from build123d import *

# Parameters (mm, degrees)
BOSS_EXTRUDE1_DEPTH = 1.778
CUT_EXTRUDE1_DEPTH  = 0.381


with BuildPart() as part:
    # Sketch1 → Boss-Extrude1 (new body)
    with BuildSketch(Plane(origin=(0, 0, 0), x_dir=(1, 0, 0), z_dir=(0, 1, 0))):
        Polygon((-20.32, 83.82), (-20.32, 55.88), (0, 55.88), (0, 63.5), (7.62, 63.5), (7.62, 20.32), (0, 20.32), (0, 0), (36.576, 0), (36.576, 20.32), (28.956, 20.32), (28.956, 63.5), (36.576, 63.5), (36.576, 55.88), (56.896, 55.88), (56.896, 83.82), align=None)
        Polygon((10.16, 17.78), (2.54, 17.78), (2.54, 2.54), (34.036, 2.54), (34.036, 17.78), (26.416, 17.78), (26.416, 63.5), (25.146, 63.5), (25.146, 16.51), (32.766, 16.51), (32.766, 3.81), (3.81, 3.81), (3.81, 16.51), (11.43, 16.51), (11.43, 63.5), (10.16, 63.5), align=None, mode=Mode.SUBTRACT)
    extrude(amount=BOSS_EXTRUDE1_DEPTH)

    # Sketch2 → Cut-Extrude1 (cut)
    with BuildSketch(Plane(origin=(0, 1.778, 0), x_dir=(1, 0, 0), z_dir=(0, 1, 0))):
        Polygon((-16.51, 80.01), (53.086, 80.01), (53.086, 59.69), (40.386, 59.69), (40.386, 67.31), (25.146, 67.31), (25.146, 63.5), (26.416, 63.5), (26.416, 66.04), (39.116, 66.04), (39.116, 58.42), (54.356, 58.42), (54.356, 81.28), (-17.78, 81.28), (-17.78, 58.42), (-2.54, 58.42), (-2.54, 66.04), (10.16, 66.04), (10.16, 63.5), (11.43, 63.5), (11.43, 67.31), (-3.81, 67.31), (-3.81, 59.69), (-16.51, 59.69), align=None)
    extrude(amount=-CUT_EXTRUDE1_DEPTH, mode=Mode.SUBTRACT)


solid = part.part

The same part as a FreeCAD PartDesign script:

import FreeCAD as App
import Part
import Sketcher
Q = App.Units.Quantity

doc = App.newDocument("Part")
params = doc.addObject("Spreadsheet::Sheet", "Params")
for row, (alias, value) in enumerate([
    ("sketch1_width", "0.8 in"),
    ("sketch1_width2", "0.3 in"),
    ("sketch1_height", "1.1 in"),
    ("sketch1_height2", "1.7 in"),
    ("sketch1_height3", "1.8 in"),
    ("pad1_length", "0.07 in"),
    ("sketch2_width", "0.5 in"),
    ("sketch2_width2", "0.6 in"),
    ("sketch2_height", "0.8 in"),
    ("sketch2_height2", "0.3 in"),
    ("sketch2_height3", "0.1 in"),
    ("pocket1_length", "0.015 in"),
], start=1):
    params.set(f"A{row}", alias)
    params.set(f"B{row}", "=" + value)
    params.setAlias(f"B{row}", alias)

body = doc.addObject("PartDesign::Body", "Body")

# Sketch on XZ plane
sketch1 = doc.addObject("Sketcher::SketchObject", "Sketch")
body.addObject(sketch1)
sketch1.AttachmentSupport = (doc.XZ_Plane, [""])
sketch1.MapMode = "FlatFace"
sketch1.addGeometry([
    Part.LineSegment(App.Vector(-20.3, -83.8, 0), App.Vector(-20.3, -55.9, 0)),  # 0
    Part.LineSegment(App.Vector(-20.3, -55.9, 0), App.Vector(0, -55.9, 0)),  # 1
    Part.LineSegment(App.Vector(0, -55.9, 0), App.Vector(0, -63.5, 0)),  # 2
    Part.LineSegment(App.Vector(0, -63.5, 0), App.Vector(7.6, -63.5, 0)),  # 3
    Part.LineSegment(App.Vector(7.6, -63.5, 0), App.Vector(7.6, -20.3, 0)),  # 4
    Part.LineSegment(App.Vector(7.6, -20.3, 0), App.Vector(0, -20.3, 0)),  # 5
    Part.LineSegment(App.Vector(0, -20.3, 0), App.Vector(0, 0, 0)),  # 6
    Part.LineSegment(App.Vector(0, 0, 0), App.Vector(36.6, 0, 0)),  # 7
    Part.LineSegment(App.Vector(36.6, 0, 0), App.Vector(36.6, -20.3, 0)),  # 8
    Part.LineSegment(App.Vector(36.6, -20.3, 0), App.Vector(29, -20.3, 0)),  # 9
    Part.LineSegment(App.Vector(29, -20.3, 0), App.Vector(29, -63.5, 0)),  # 10
    Part.LineSegment(App.Vector(29, -63.5, 0), App.Vector(36.6, -63.5, 0)),  # 11
    Part.LineSegment(App.Vector(36.6, -63.5, 0), App.Vector(36.6, -55.9, 0)),  # 12
    Part.LineSegment(App.Vector(36.6, -55.9, 0), App.Vector(56.9, -55.9, 0)),  # 13
    Part.LineSegment(App.Vector(56.9, -55.9, 0), App.Vector(56.9, -83.8, 0)),  # 14
    Part.LineSegment(App.Vector(56.9, -83.8, 0), App.Vector(-20.3, -83.8, 0)),  # 15
    Part.LineSegment(App.Vector(2.5, -17.8, 0), App.Vector(10.2, -17.8, 0)),  # 16
    Part.LineSegment(App.Vector(10.2, -17.8, 0), App.Vector(10.2, -63.5, 0)),  # 17
    Part.LineSegment(App.Vector(10.2, -63.5, 0), App.Vector(11.4, -63.5, 0)),  # 18
    Part.LineSegment(App.Vector(11.4, -63.5, 0), App.Vector(11.4, -16.5, 0)),  # 19
    Part.LineSegment(App.Vector(11.4, -16.5, 0), App.Vector(3.8, -16.5, 0)),  # 20
    Part.LineSegment(App.Vector(3.8, -16.5, 0), App.Vector(3.8, -3.8, 0)),  # 21
    Part.LineSegment(App.Vector(3.8, -3.8, 0), App.Vector(32.8, -3.8, 0)),  # 22
    Part.LineSegment(App.Vector(32.8, -3.8, 0), App.Vector(32.8, -16.5, 0)),  # 23
    Part.LineSegment(App.Vector(32.8, -16.5, 0), App.Vector(25.1, -16.5, 0)),  # 24
    Part.LineSegment(App.Vector(25.1, -16.5, 0), App.Vector(25.1, -63.5, 0)),  # 25
    Part.LineSegment(App.Vector(25.1, -63.5, 0), App.Vector(26.4, -63.5, 0)),  # 26
    Part.LineSegment(App.Vector(26.4, -63.5, 0), App.Vector(26.4, -17.8, 0)),  # 27
    Part.LineSegment(App.Vector(26.4, -17.8, 0), App.Vector(34, -17.8, 0)),  # 28
    Part.LineSegment(App.Vector(34, -17.8, 0), App.Vector(34, -2.5, 0)),  # 29
    Part.LineSegment(App.Vector(34, -2.5, 0), App.Vector(2.5, -2.5, 0)),  # 30
    Part.LineSegment(App.Vector(2.5, -2.5, 0), App.Vector(2.5, -17.8, 0)),  # 31
], False)
sketch1.addConstraint([
    Sketcher.Constraint("Coincident", 0, 2, 1, 1),
    Sketcher.Constraint("Coincident", 1, 2, 2, 1),
    Sketcher.Constraint("Coincident", 2, 2, 3, 1),
    Sketcher.Constraint("Coincident", 3, 2, 4, 1),
    Sketcher.Constraint("Coincident", 4, 2, 5, 1),
    Sketcher.Constraint("Coincident", 5, 2, 6, 1),
    Sketcher.Constraint("Coincident", 6, 2, 7, 1),
    Sketcher.Constraint("Coincident", 7, 2, 8, 1),
    Sketcher.Constraint("Coincident", 8, 2, 9, 1),
    Sketcher.Constraint("Coincident", 9, 2, 10, 1),
    Sketcher.Constraint("Coincident", 10, 2, 11, 1),
    Sketcher.Constraint("Coincident", 11, 2, 12, 1),
    Sketcher.Constraint("Coincident", 12, 2, 13, 1),
    Sketcher.Constraint("Coincident", 13, 2, 14, 1),
    Sketcher.Constraint("Coincident", 14, 2, 15, 1),
    Sketcher.Constraint("Coincident", 15, 2, 0, 1),
    Sketcher.Constraint("Coincident", 16, 2, 17, 1),
    Sketcher.Constraint("Coincident", 17, 2, 18, 1),
    Sketcher.Constraint("Coincident", 18, 2, 19, 1),
    Sketcher.Constraint("Coincident", 19, 2, 20, 1),
    Sketcher.Constraint("Coincident", 20, 2, 21, 1),
    Sketcher.Constraint("Coincident", 21, 2, 22, 1),
    Sketcher.Constraint("Coincident", 22, 2, 23, 1),
    Sketcher.Constraint("Coincident", 23, 2, 24, 1),
    Sketcher.Constraint("Coincident", 24, 2, 25, 1),
    Sketcher.Constraint("Coincident", 25, 2, 26, 1),
    Sketcher.Constraint("Coincident", 26, 2, 27, 1),
    Sketcher.Constraint("Coincident", 27, 2, 28, 1),
    Sketcher.Constraint("Coincident", 28, 2, 29, 1),
    Sketcher.Constraint("Coincident", 29, 2, 30, 1),
    Sketcher.Constraint("Coincident", 30, 2, 31, 1),
    Sketcher.Constraint("Coincident", 31, 2, 16, 1),
    Sketcher.Constraint("Vertical", 0),
    Sketcher.Constraint("Horizontal", 1),
    Sketcher.Constraint("Vertical", 2),
    Sketcher.Constraint("Horizontal", 3),
    Sketcher.Constraint("Vertical", 4),
    Sketcher.Constraint("Horizontal", 5),
    Sketcher.Constraint("Vertical", 6),
    Sketcher.Constraint("Horizontal", 7),
    Sketcher.Constraint("Vertical", 8),
    Sketcher.Constraint("Horizontal", 9),
    Sketcher.Constraint("Vertical", 10),
    Sketcher.Constraint("Horizontal", 11),
    Sketcher.Constraint("Vertical", 12),
    Sketcher.Constraint("Horizontal", 13),
    Sketcher.Constraint("Vertical", 14),
    Sketcher.Constraint("Horizontal", 15),
    Sketcher.Constraint("Horizontal", 16),
    Sketcher.Constraint("Vertical", 17),
    Sketcher.Constraint("Horizontal", 18),
    Sketcher.Constraint("Vertical", 19),
    Sketcher.Constraint("Horizontal", 20),
    Sketcher.Constraint("Vertical", 21),
    Sketcher.Constraint("Horizontal", 22),
    Sketcher.Constraint("Vertical", 23),
    Sketcher.Constraint("Horizontal", 24),
    Sketcher.Constraint("Vertical", 25),
    Sketcher.Constraint("Horizontal", 26),
    Sketcher.Constraint("Vertical", 27),
    Sketcher.Constraint("Horizontal", 28),
    Sketcher.Constraint("Vertical", 29),
    Sketcher.Constraint("Horizontal", 30),
    Sketcher.Constraint("Vertical", 31),
    Sketcher.Constraint("Coincident", 6, 2, -1, 1),
    Sketcher.Constraint("PointOnObject", 1, 2, -2),
    Sketcher.Constraint("Horizontal", 5, 2, 8, 2),
    Sketcher.Constraint("Horizontal", 3, 2, 10, 2),
    Sketcher.Constraint("Horizontal", 1, 2, 12, 2),
    Sketcher.Constraint("Horizontal", 11, 2, 17, 2),
    Sketcher.Constraint("Horizontal", 20, 2, 23, 2),
    Sketcher.Constraint("Horizontal", 18, 2, 25, 2),
    Sketcher.Constraint("Horizontal", 16, 2, 27, 2),
    Sketcher.Constraint("Vertical", 8, 2, 11, 2),
    Sketcher.Constraint("Equal", 5, 9),
    Sketcher.Constraint("Equal", 1, 13),
    Sketcher.Constraint("Equal", 11, 16),
    Sketcher.Constraint("Equal", 16, 20),
    Sketcher.Constraint("Equal", 20, 24),
    Sketcher.Constraint("Equal", 18, 26),
    Sketcher.Constraint("Equal", 24, 28),
    Sketcher.Constraint("Equal", 28, 2),
    Sketcher.Constraint("Equal", 13, 6),
    Sketcher.Constraint("DistanceX", 1, 1, 1, 2, Q("0.8 in")),
    Sketcher.Constraint("DistanceX", 3, 1, 3, 2, Q("0.3 in")),
    Sketcher.Constraint("DistanceY", 0, 1, 0, 2, Q("1.1 in")),
    Sketcher.Constraint("DistanceY", 4, 1, 4, 2, Q("1.7 in")),
    Sketcher.Constraint("DistanceY", 17, 2, 17, 1, Q("1.8 in")),
    Sketcher.Constraint("DistanceY", 21, 1, 21, 2, Q("0.5 in")),
    Sketcher.Constraint("DistanceY", 29, 1, 29, 2, Q("0.6 in")),
    Sketcher.Constraint("DistanceX", 7, 1, 7, 2, Q("1.44 in")),
    Sketcher.Constraint("DistanceX", 18, 1, 18, 2, Q("0.05 in")),
    Sketcher.Constraint("DistanceX", 22, 1, 22, 2, Q("1.14 in")),
    Sketcher.Constraint("DistanceY", 19, 1, 19, 2, Q("1.85 in")),
    Sketcher.Constraint("DistanceX", -1, 1, 16, 2, Q("0.4 in")),
])
sketch1.setExpression("Constraints[83]", "Params.sketch1_width")
sketch1.setExpression("Constraints[84]", "Params.sketch1_width2")
sketch1.setExpression("Constraints[85]", "Params.sketch1_height")
sketch1.setExpression("Constraints[86]", "Params.sketch1_height2")
sketch1.setExpression("Constraints[87]", "Params.sketch1_height3")
pad1 = doc.addObject("PartDesign::Pad", "Pad")
body.addObject(pad1)
pad1.Profile = sketch1
pad1.setExpression("Length", "Params.pad1_length")
pad1.Reversed = True

# Sketch on XZ plane
sketch2 = doc.addObject("Sketcher::SketchObject", "Sketch001")
body.addObject(sketch2)
sketch2.AttachmentSupport = (doc.XZ_Plane, [""])
sketch2.MapMode = "FlatFace"
sketch2.AttachmentOffset = App.Placement(App.Vector(0, 0, -0.07 * 25.4), App.Rotation())
sketch2.addGeometry([
    Part.LineSegment(App.Vector(-16.5, -80, 0), App.Vector(53.1, -80, 0)),  # 0
    Part.LineSegment(App.Vector(53.1, -80, 0), App.Vector(53.1, -59.7, 0)),  # 1
    Part.LineSegment(App.Vector(53.1, -59.7, 0), App.Vector(40.4, -59.7, 0)),  # 2
    Part.LineSegment(App.Vector(40.4, -59.7, 0), App.Vector(40.4, -67.3, 0)),  # 3
    Part.LineSegment(App.Vector(40.4, -67.3, 0), App.Vector(25.1, -67.3, 0)),  # 4
    Part.LineSegment(App.Vector(25.1, -67.3, 0), App.Vector(25.1, -63.5, 0)),  # 5
    Part.LineSegment(App.Vector(25.1, -63.5, 0), App.Vector(26.4, -63.5, 0)),  # 6
    Part.LineSegment(App.Vector(26.4, -63.5, 0), App.Vector(26.4, -66, 0)),  # 7
    Part.LineSegment(App.Vector(26.4, -66, 0), App.Vector(39.1, -66, 0)),  # 8
    Part.LineSegment(App.Vector(39.1, -66, 0), App.Vector(39.1, -58.4, 0)),  # 9
    Part.LineSegment(App.Vector(39.1, -58.4, 0), App.Vector(54.4, -58.4, 0)),  # 10
    Part.LineSegment(App.Vector(54.4, -58.4, 0), App.Vector(54.4, -81.3, 0)),  # 11
    Part.LineSegment(App.Vector(54.4, -81.3, 0), App.Vector(-17.8, -81.3, 0)),  # 12
    Part.LineSegment(App.Vector(-17.8, -81.3, 0), App.Vector(-17.8, -58.4, 0)),  # 13
    Part.LineSegment(App.Vector(-17.8, -58.4, 0), App.Vector(-2.5, -58.4, 0)),  # 14
    Part.LineSegment(App.Vector(-2.5, -58.4, 0), App.Vector(-2.5, -66, 0)),  # 15
    Part.LineSegment(App.Vector(-2.5, -66, 0), App.Vector(10.2, -66, 0)),  # 16
    Part.LineSegment(App.Vector(10.2, -66, 0), App.Vector(10.2, -63.5, 0)),  # 17
    Part.LineSegment(App.Vector(10.2, -63.5, 0), App.Vector(11.4, -63.5, 0)),  # 18
    Part.LineSegment(App.Vector(11.4, -63.5, 0), App.Vector(11.4, -67.3, 0)),  # 19
    Part.LineSegment(App.Vector(11.4, -67.3, 0), App.Vector(-3.8, -67.3, 0)),  # 20
    Part.LineSegment(App.Vector(-3.8, -67.3, 0), App.Vector(-3.8, -59.7, 0)),  # 21
    Part.LineSegment(App.Vector(-3.8, -59.7, 0), App.Vector(-16.5, -59.7, 0)),  # 22
    Part.LineSegment(App.Vector(-16.5, -59.7, 0), App.Vector(-16.5, -80, 0)),  # 23
], False)
sketch2.addConstraint([
    Sketcher.Constraint("Coincident", 0, 2, 1, 1),
    Sketcher.Constraint("Coincident", 1, 2, 2, 1),
    Sketcher.Constraint("Coincident", 2, 2, 3, 1),
    Sketcher.Constraint("Coincident", 3, 2, 4, 1),
    Sketcher.Constraint("Coincident", 4, 2, 5, 1),
    Sketcher.Constraint("Coincident", 5, 2, 6, 1),
    Sketcher.Constraint("Coincident", 6, 2, 7, 1),
    Sketcher.Constraint("Coincident", 7, 2, 8, 1),
    Sketcher.Constraint("Coincident", 8, 2, 9, 1),
    Sketcher.Constraint("Coincident", 9, 2, 10, 1),
    Sketcher.Constraint("Coincident", 10, 2, 11, 1),
    Sketcher.Constraint("Coincident", 11, 2, 12, 1),
    Sketcher.Constraint("Coincident", 12, 2, 13, 1),
    Sketcher.Constraint("Coincident", 13, 2, 14, 1),
    Sketcher.Constraint("Coincident", 14, 2, 15, 1),
    Sketcher.Constraint("Coincident", 15, 2, 16, 1),
    Sketcher.Constraint("Coincident", 16, 2, 17, 1),
    Sketcher.Constraint("Coincident", 17, 2, 18, 1),
    Sketcher.Constraint("Coincident", 18, 2, 19, 1),
    Sketcher.Constraint("Coincident", 19, 2, 20, 1),
    Sketcher.Constraint("Coincident", 20, 2, 21, 1),
    Sketcher.Constraint("Coincident", 21, 2, 22, 1),
    Sketcher.Constraint("Coincident", 22, 2, 23, 1),
    Sketcher.Constraint("Coincident", 23, 2, 0, 1),
    Sketcher.Constraint("Horizontal", 0),
    Sketcher.Constraint("Vertical", 1),
    Sketcher.Constraint("Horizontal", 2),
    Sketcher.Constraint("Vertical", 3),
    Sketcher.Constraint("Horizontal", 4),
    Sketcher.Constraint("Vertical", 5),
    Sketcher.Constraint("Horizontal", 6),
    Sketcher.Constraint("Vertical", 7),
    Sketcher.Constraint("Horizontal", 8),
    Sketcher.Constraint("Vertical", 9),
    Sketcher.Constraint("Horizontal", 10),
    Sketcher.Constraint("Vertical", 11),
    Sketcher.Constraint("Horizontal", 12),
    Sketcher.Constraint("Vertical", 13),
    Sketcher.Constraint("Horizontal", 14),
    Sketcher.Constraint("Vertical", 15),
    Sketcher.Constraint("Horizontal", 16),
    Sketcher.Constraint("Vertical", 17),
    Sketcher.Constraint("Horizontal", 18),
    Sketcher.Constraint("Vertical", 19),
    Sketcher.Constraint("Horizontal", 20),
    Sketcher.Constraint("Vertical", 21),
    Sketcher.Constraint("Horizontal", 22),
    Sketcher.Constraint("Vertical", 23),
    Sketcher.Constraint("Horizontal", 10, 2, 13, 2),
    Sketcher.Constraint("Horizontal", 8, 2, 15, 2),
    Sketcher.Constraint("Horizontal", 6, 2, 17, 2),
    Sketcher.Constraint("Horizontal", 4, 2, 19, 2),
    Sketcher.Constraint("Horizontal", 2, 2, 21, 2),
    Sketcher.Constraint("Equal", 2, 8),
    Sketcher.Constraint("Equal", 4, 10),
    Sketcher.Constraint("Equal", 10, 14),
    Sketcher.Constraint("Equal", 8, 16),
    Sketcher.Constraint("Equal", 6, 18),
    Sketcher.Constraint("Equal", 14, 20),
    Sketcher.Constraint("Equal", 16, 22),
    Sketcher.Constraint("Equal", 3, 9),
    Sketcher.Constraint("DistanceX", 2, 2, 2, 1, Q("0.5 in")),
    Sketcher.Constraint("DistanceX", 4, 2, 4, 1, Q("0.6 in")),
    Sketcher.Constraint("DistanceY", 1, 1, 1, 2, Q("0.8 in")),
    Sketcher.Constraint("DistanceY", 3, 2, 3, 1, Q("0.3 in")),
    Sketcher.Constraint("DistanceY", 7, 2, 7, 1, Q("0.1 in")),
    Sketcher.Constraint("DistanceY", 11, 2, 11, 1, Q("0.9 in")),
    Sketcher.Constraint("DistanceX", 0, 1, 0, 2, Q("2.74 in")),
    Sketcher.Constraint("DistanceX", 6, 1, 6, 2, Q("0.05 in")),
    Sketcher.Constraint("DistanceY", 5, 1, 5, 2, Q("0.15 in")),
    Sketcher.Constraint("DistanceY", 5, 2, -1, 1, Q("2.5 in")),
    Sketcher.Constraint("DistanceX", 12, 2, -1, 1, Q("0.7 in")),
])
sketch2.setExpression("Constraints[61]", "Params.sketch2_width")
sketch2.setExpression("Constraints[62]", "Params.sketch2_width2")
sketch2.setExpression("Constraints[63]", "Params.sketch2_height")
sketch2.setExpression("Constraints[64]", "Params.sketch2_height2")
sketch2.setExpression("Constraints[65]", "Params.sketch2_height3")
pocket1 = doc.addObject("PartDesign::Pocket", "Pocket")
body.addObject(pocket1)
pocket1.Profile = sketch2
pocket1.setExpression("Length", "Params.pocket1_length")
pocket1.Reversed = True

doc.recompute()
